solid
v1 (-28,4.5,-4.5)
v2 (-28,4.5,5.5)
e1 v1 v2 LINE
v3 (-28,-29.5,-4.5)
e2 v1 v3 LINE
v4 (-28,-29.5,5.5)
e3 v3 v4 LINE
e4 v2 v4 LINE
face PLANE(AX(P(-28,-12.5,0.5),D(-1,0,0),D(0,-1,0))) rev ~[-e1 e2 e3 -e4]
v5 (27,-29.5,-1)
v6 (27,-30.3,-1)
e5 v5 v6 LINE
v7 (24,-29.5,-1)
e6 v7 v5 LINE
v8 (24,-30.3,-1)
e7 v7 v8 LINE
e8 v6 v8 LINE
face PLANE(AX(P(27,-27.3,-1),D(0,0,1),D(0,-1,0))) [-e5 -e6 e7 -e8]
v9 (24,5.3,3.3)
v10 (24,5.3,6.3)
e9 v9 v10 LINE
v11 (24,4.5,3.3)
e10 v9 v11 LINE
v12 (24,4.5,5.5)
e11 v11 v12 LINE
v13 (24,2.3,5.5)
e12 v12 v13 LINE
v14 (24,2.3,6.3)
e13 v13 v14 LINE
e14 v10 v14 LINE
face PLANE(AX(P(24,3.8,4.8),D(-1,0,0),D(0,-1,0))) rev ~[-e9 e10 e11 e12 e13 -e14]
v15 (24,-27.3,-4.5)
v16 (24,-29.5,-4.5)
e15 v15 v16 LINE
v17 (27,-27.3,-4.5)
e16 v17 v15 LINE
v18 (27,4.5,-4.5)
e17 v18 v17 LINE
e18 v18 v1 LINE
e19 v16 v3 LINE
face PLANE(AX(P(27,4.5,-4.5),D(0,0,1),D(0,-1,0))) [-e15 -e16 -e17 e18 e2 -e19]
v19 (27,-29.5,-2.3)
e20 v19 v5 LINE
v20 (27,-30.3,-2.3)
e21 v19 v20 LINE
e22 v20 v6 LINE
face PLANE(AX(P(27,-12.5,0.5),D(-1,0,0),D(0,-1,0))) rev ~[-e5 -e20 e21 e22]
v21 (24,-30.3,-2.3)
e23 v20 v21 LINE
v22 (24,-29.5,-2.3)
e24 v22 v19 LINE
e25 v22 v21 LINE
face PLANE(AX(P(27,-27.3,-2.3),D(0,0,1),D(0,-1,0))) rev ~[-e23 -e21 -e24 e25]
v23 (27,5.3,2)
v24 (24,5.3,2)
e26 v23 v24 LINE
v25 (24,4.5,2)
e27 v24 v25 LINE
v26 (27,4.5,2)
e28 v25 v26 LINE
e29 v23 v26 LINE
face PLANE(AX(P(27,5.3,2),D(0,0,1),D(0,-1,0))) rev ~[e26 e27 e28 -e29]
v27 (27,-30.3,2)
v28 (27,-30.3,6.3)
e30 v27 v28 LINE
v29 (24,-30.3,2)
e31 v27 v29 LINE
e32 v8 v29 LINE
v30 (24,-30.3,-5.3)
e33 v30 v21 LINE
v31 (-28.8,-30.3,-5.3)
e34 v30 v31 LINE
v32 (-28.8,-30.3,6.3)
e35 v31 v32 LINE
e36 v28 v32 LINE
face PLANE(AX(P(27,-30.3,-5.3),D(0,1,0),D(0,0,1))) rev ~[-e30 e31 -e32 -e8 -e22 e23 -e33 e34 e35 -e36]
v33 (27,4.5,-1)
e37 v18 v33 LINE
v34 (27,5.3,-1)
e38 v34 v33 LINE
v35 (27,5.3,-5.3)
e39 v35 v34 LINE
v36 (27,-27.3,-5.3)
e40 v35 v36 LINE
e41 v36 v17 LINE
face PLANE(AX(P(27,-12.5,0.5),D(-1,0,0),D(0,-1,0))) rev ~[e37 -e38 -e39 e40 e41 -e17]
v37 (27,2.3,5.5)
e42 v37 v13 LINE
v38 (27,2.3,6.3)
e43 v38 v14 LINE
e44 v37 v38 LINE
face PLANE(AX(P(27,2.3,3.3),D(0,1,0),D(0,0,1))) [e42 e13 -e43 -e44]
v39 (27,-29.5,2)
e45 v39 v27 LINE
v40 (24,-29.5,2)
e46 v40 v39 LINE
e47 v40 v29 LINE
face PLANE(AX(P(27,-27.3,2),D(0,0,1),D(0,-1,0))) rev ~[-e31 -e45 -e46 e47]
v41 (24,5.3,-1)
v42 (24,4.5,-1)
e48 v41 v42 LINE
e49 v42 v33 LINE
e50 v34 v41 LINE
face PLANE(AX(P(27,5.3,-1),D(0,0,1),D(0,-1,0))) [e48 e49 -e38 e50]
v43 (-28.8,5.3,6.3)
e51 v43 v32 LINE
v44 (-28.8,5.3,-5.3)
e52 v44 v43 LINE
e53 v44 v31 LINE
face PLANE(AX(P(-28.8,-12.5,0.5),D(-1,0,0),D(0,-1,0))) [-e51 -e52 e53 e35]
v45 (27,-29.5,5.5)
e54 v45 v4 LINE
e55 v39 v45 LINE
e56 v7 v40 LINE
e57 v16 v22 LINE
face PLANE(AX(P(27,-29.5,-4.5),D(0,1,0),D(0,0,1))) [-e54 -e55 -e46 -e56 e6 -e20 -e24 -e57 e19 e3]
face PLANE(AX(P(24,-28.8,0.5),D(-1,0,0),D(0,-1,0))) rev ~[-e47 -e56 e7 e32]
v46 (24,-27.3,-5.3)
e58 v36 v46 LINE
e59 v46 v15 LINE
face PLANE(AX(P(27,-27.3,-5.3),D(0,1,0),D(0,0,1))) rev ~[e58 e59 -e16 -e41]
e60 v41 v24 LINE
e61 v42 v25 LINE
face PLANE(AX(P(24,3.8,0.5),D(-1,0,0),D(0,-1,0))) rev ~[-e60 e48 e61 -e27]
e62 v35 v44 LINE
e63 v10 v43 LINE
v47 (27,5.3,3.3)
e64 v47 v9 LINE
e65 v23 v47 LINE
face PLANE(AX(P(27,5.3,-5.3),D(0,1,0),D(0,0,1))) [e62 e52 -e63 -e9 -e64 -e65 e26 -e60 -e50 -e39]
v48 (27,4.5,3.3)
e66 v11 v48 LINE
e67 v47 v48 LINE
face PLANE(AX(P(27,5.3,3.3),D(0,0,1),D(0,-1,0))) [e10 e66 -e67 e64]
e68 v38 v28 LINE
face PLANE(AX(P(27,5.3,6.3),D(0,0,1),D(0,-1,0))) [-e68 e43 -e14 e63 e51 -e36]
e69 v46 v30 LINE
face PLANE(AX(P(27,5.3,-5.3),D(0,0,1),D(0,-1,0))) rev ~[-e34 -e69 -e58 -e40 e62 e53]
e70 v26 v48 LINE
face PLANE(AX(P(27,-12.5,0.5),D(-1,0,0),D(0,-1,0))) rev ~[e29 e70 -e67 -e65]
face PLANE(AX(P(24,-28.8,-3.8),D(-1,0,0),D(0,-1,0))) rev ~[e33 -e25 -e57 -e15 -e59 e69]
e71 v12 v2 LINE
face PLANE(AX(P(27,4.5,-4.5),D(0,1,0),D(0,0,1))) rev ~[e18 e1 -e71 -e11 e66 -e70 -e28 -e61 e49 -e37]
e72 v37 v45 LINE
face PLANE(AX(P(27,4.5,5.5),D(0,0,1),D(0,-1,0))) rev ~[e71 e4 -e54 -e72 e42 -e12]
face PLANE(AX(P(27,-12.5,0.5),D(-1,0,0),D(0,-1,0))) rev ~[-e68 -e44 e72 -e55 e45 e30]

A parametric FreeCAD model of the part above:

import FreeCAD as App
import Part
import Sketcher

V = App.Vector
Q = App.Units.Quantity


def add_polygon(sketch, points):
    """Adds a closed chain of lines whose ends are joined by coincident constraints."""
    first, n = sketch.GeometryCount, len(points)
    for a, b in zip(points, points[1:] + points[:1]):
        sketch.addGeometry(Part.LineSegment(App.Vector(*a, 0), App.Vector(*b, 0)), False)
    for i in range(n):
        sketch.addConstraint(Sketcher.Constraint("Coincident", first + i, 2, first + (i + 1) % n, 1))

doc = App.newDocument("Part")
body = doc.addObject("PartDesign::Body", "Body")

# Sketch on XZ plane
sketch1 = body.newObject("Sketcher::SketchObject", "Sketch")
sketch1.AttachmentSupport = (doc.getObject("XZ_Plane"), [""])
sketch1.MapMode = "FlatFace"
add_polygon(sketch1, [(-17.8, 5.8), (-17.8, -5.8), (17.8, -5.8), (17.8, 5.8)])  # lines 0-3
sketch1.addConstraint([
    Sketcher.Constraint("Vertical", 0),
    Sketcher.Constraint("Horizontal", 1),
    Sketcher.Constraint("Vertical", 2),
    Sketcher.Constraint("Horizontal", 3),
    Sketcher.Constraint("Symmetric", 0, 2, 2, 2, -1, 1),
    Sketcher.Constraint("DistanceX", 1, 1, 1, 2, Q("35.6 mm")),
    Sketcher.Constraint("DistanceY", 0, 2, 0, 1, Q("11.6 mm")),
])
pad1 = body.newObject("PartDesign::Pad", "Pad")
pad1.Profile = sketch1
pad1.Length = 55.8

# Sketch on XZ plane
sketch2 = body.newObject("Sketcher::SketchObject", "Sketch001")
sketch2.AttachmentSupport = (doc.getObject("XZ_Plane"), [""])
sketch2.MapMode = "FlatFace"
add_polygon(sketch2, [(-17, 5), (-17, -5), (17, -5), (17, 5)])  # lines 0-3
sketch2.addConstraint([
    Sketcher.Constraint("Vertical", 0),
    Sketcher.Constraint("Horizontal", 1),
    Sketcher.Constraint("Vertical", 2),
    Sketcher.Constraint("Horizontal", 3),
    Sketcher.Constraint("Symmetric", 0, 2, 2, 2, -1, 1),
    Sketcher.Constraint("DistanceX", 1, 1, 1, 2, Q("34 mm")),
    Sketcher.Constraint("DistanceY", 0, 2, 0, 1, Q("10 mm")),
])
pocket1 = body.newObject("PartDesign::Pocket", "Pocket")
pocket1.Profile = sketch2
pocket1.Length = 55
pocket1.Reversed = True

# Sketch on XZ plane
sketch3 = body.newObject("Sketcher::SketchObject", "Sketch002")
sketch3.AttachmentSupport = (doc.getObject("XZ_Plane"), [""])
sketch3.MapMode = "FlatFace"
add_polygon(sketch3, [(-17.8, 5.8), (-17.8, 2.8), (-14.8, 2.8), (-14.8, 5.8)])  # lines 0-3
add_polygon(sketch3, [(14.8, -2.8), (14.8, -5.8), (17.8, -5.8), (17.8, -2.8)])  # lines 4-7
add_polygon(sketch3, [(-17.8, 1.5), (-17.8, -1.5), (-14.8, -1.5), (-14.8, 1.5)])  # lines 8-11
add_polygon(sketch3, [(14.8, 1.5), (14.8, -1.5), (17.8, -1.5), (17.8, 1.5)])  # lines 12-15
sketch3.addConstraint([
    Sketcher.Constraint("Vertical", 0),
    Sketcher.Constraint("Horizontal", 1),
    Sketcher.Constraint("Vertical", 2),
    Sketcher.Constraint("Horizontal", 3),
    Sketcher.Constraint("Vertical", 4),
    Sketcher.Constraint("Horizontal", 5),
    Sketcher.Constraint("Vertical", 6),
    Sketcher.Constraint("Horizontal", 7),
    Sketcher.Constraint("Vertical", 8),
    Sketcher.Constraint("Horizontal", 9),
    Sketcher.Constraint("Vertical", 10),
    Sketcher.Constraint("Horizontal", 11),
    Sketcher.Constraint("Vertical", 12),
    Sketcher.Constraint("Horizontal", 13),
    Sketcher.Constraint("Vertical", 14),
    Sketcher.Constraint("Horizontal", 15),
    Sketcher.Constraint("Symmetric", 2, 2, 4, 2, -1, 1),
    Sketcher.Constraint("Symmetric", 0, 2, 6, 2, -1, 1),
    Sketcher.Constraint("Symmetric", 10, 2, 12, 2, -1, 1),
    Sketcher.Constraint("Symmetric", 8, 2, 14, 2, -1, 1),
    Sketcher.Constraint("Horizontal", 9, 2, 12, 2),
    Sketcher.Constraint("Vertical", 3, 2, 8, 2),
    Sketcher.Constraint("Vertical", 2, 2, 9, 2),
    Sketcher.Constraint("Equal", 15, 0),
    Sketcher.Constraint("Equal", 6, 8),
    Sketcher.Constraint("DistanceX", 1, 1, 1, 2, Q("3 mm")),
    Sketcher.Constraint("DistanceX", 0, 2, -1, 1, Q("17.8 mm")),
    Sketcher.Constraint("DistanceY", -1, 1, 0, 2, Q("2.8 mm")),
])
pocket2 = body.newObject("PartDesign::Pocket", "Pocket001")
pocket2.Profile = sketch3
pocket2.Length = 3
pocket2.Reversed = True
body2 = doc.addObject("PartDesign::Body", "Body001")
doc.recompute()

body.Placement = App.Placement(V(27, -12.5, 0.5), App.Rotation(V(0, 0, -1), 90))
boolean = body2.newObject("PartDesign::Boolean", "Boolean")
boolean.Type = "Fuse"
boolean.addObjects([body])

doc.recompute()
